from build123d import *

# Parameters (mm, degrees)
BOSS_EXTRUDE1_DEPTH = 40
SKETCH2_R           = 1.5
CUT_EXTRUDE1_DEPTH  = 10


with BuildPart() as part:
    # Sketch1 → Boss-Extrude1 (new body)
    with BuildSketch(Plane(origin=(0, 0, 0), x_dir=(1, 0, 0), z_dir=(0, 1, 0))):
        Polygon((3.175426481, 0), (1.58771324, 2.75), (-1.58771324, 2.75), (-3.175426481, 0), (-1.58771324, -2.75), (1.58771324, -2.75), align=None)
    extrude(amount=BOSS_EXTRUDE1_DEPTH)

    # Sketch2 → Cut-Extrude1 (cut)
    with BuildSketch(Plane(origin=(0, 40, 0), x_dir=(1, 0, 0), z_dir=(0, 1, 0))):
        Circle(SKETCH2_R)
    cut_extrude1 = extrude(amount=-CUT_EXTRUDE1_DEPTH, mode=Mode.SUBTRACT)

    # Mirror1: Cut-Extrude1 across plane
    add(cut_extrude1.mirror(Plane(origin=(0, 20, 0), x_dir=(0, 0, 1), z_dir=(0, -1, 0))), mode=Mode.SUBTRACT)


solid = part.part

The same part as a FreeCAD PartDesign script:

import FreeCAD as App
import Part
import Sketcher
Q = App.Units.Quantity

doc = App.newDocument("Part")
body = doc.addObject("PartDesign::Body", "Body")

# Sketch on XZ plane
sketch1 = body.newObject("Sketcher::SketchObject", "Sketch")
sketch1.AttachmentSupport = (doc.getObject("XZ_Plane"), [""])
sketch1.MapMode = "FlatFace"
sketch1.addGeometry([
    Part.LineSegment(App.Vector(3.2, 0, 0), App.Vector(1.6, -2.8, 0)),  # 0
    Part.LineSegment(App.Vector(1.6, -2.8, 0), App.Vector(-1.6, -2.8, 0)),  # 1
    Part.LineSegment(App.Vector(-1.6, -2.8, 0), App.Vector(-3.2, 0, 0)),  # 2
    Part.LineSegment(App.Vector(-3.2, 0, 0), App.Vector(-1.6, 2.8, 0)),  # 3
    Part.LineSegment(App.Vector(-1.6, 2.8, 0), App.Vector(1.6, 2.8, 0)),  # 4
    Part.LineSegment(App.Vector(1.6, 2.8, 0), App.Vector(3.2, 0, 0)),  # 5
], False)
sketch1.addConstraint([
    Sketcher.Constraint("Coincident", 0, 2, 1, 1),
    Sketcher.Constraint("Coincident", 1, 2, 2, 1),
    Sketcher.Constraint("Coincident", 2, 2, 3, 1),
    Sketcher.Constraint("Coincident", 3, 2, 4, 1),
    Sketcher.Constraint("Coincident", 4, 2, 5, 1),
    Sketcher.Constraint("Coincident", 5, 2, 0, 1),
    Sketcher.Constraint("Horizontal", 1),
    Sketcher.Constraint("Horizontal", 4),
    Sketcher.Constraint("Symmetric", 0, 2, 3, 2, -1, 1),
    Sketcher.Constraint("Symmetric", 2, 2, 5, 2, -1, 1),
    Sketcher.Constraint("PointOnObject", 2, 2, -1),
    Sketcher.Constraint("Parallel", 2, 5),
    Sketcher.Constraint("Vertical", 1, 2, 3, 2),
    Sketcher.Constraint("Angle", 0, Q("-120 deg")),
    Sketcher.Constraint("DistanceY", 1, 2, 3, 2, Q("5.5 mm")),
    Sketcher.Constraint("DistanceX", 1, 2, 1, 1, Q("3.175426 mm")),
])
pad1 = body.newObject("PartDesign::Pad", "Pad")
pad1.Profile = sketch1
pad1.Length = 40
pad1.Reversed = True

# Sketch on XZ plane
sketch2 = body.newObject("Sketcher::SketchObject", "Sketch001")
sketch2.AttachmentSupport = (doc.getObject("XZ_Plane"), [""])
sketch2.MapMode = "FlatFace"
sketch2.AttachmentOffset = App.Placement(App.Vector(0, 0, -40), App.Rotation())
sketch2.addGeometry(Part.Circle(App.Vector(0, 0, 0), App.Vector(0, 0, 1), 1.5), False)
sketch2.addConstraint([
    Sketcher.Constraint("Coincident", 0, 3, -1, 1),
    Sketcher.Constraint("Diameter", 0, Q("3 mm")),
])
pocket1 = body.newObject("PartDesign::Pocket", "Pocket")
pocket1.Profile = sketch2
pocket1.Length = 10
pocket1.Reversed = True
doc.recompute()

datumplane = body.newObject("PartDesign::Plane", "DatumPlane")
datumplane.AttachmentSupport = (doc.getObject("XZ_Plane"), [""])
datumplane.MapMode = "FlatFace"
datumplane.AttachmentOffset = App.Placement(App.Vector(0, 0, -20), App.Rotation())
mirrored = body.newObject("PartDesign::Mirrored", "Mirrored")
mirrored.Originals = [pocket1]
mirrored.MirrorPlane = (datumplane, [""])
body.Tip = mirrored

doc.recompute()
